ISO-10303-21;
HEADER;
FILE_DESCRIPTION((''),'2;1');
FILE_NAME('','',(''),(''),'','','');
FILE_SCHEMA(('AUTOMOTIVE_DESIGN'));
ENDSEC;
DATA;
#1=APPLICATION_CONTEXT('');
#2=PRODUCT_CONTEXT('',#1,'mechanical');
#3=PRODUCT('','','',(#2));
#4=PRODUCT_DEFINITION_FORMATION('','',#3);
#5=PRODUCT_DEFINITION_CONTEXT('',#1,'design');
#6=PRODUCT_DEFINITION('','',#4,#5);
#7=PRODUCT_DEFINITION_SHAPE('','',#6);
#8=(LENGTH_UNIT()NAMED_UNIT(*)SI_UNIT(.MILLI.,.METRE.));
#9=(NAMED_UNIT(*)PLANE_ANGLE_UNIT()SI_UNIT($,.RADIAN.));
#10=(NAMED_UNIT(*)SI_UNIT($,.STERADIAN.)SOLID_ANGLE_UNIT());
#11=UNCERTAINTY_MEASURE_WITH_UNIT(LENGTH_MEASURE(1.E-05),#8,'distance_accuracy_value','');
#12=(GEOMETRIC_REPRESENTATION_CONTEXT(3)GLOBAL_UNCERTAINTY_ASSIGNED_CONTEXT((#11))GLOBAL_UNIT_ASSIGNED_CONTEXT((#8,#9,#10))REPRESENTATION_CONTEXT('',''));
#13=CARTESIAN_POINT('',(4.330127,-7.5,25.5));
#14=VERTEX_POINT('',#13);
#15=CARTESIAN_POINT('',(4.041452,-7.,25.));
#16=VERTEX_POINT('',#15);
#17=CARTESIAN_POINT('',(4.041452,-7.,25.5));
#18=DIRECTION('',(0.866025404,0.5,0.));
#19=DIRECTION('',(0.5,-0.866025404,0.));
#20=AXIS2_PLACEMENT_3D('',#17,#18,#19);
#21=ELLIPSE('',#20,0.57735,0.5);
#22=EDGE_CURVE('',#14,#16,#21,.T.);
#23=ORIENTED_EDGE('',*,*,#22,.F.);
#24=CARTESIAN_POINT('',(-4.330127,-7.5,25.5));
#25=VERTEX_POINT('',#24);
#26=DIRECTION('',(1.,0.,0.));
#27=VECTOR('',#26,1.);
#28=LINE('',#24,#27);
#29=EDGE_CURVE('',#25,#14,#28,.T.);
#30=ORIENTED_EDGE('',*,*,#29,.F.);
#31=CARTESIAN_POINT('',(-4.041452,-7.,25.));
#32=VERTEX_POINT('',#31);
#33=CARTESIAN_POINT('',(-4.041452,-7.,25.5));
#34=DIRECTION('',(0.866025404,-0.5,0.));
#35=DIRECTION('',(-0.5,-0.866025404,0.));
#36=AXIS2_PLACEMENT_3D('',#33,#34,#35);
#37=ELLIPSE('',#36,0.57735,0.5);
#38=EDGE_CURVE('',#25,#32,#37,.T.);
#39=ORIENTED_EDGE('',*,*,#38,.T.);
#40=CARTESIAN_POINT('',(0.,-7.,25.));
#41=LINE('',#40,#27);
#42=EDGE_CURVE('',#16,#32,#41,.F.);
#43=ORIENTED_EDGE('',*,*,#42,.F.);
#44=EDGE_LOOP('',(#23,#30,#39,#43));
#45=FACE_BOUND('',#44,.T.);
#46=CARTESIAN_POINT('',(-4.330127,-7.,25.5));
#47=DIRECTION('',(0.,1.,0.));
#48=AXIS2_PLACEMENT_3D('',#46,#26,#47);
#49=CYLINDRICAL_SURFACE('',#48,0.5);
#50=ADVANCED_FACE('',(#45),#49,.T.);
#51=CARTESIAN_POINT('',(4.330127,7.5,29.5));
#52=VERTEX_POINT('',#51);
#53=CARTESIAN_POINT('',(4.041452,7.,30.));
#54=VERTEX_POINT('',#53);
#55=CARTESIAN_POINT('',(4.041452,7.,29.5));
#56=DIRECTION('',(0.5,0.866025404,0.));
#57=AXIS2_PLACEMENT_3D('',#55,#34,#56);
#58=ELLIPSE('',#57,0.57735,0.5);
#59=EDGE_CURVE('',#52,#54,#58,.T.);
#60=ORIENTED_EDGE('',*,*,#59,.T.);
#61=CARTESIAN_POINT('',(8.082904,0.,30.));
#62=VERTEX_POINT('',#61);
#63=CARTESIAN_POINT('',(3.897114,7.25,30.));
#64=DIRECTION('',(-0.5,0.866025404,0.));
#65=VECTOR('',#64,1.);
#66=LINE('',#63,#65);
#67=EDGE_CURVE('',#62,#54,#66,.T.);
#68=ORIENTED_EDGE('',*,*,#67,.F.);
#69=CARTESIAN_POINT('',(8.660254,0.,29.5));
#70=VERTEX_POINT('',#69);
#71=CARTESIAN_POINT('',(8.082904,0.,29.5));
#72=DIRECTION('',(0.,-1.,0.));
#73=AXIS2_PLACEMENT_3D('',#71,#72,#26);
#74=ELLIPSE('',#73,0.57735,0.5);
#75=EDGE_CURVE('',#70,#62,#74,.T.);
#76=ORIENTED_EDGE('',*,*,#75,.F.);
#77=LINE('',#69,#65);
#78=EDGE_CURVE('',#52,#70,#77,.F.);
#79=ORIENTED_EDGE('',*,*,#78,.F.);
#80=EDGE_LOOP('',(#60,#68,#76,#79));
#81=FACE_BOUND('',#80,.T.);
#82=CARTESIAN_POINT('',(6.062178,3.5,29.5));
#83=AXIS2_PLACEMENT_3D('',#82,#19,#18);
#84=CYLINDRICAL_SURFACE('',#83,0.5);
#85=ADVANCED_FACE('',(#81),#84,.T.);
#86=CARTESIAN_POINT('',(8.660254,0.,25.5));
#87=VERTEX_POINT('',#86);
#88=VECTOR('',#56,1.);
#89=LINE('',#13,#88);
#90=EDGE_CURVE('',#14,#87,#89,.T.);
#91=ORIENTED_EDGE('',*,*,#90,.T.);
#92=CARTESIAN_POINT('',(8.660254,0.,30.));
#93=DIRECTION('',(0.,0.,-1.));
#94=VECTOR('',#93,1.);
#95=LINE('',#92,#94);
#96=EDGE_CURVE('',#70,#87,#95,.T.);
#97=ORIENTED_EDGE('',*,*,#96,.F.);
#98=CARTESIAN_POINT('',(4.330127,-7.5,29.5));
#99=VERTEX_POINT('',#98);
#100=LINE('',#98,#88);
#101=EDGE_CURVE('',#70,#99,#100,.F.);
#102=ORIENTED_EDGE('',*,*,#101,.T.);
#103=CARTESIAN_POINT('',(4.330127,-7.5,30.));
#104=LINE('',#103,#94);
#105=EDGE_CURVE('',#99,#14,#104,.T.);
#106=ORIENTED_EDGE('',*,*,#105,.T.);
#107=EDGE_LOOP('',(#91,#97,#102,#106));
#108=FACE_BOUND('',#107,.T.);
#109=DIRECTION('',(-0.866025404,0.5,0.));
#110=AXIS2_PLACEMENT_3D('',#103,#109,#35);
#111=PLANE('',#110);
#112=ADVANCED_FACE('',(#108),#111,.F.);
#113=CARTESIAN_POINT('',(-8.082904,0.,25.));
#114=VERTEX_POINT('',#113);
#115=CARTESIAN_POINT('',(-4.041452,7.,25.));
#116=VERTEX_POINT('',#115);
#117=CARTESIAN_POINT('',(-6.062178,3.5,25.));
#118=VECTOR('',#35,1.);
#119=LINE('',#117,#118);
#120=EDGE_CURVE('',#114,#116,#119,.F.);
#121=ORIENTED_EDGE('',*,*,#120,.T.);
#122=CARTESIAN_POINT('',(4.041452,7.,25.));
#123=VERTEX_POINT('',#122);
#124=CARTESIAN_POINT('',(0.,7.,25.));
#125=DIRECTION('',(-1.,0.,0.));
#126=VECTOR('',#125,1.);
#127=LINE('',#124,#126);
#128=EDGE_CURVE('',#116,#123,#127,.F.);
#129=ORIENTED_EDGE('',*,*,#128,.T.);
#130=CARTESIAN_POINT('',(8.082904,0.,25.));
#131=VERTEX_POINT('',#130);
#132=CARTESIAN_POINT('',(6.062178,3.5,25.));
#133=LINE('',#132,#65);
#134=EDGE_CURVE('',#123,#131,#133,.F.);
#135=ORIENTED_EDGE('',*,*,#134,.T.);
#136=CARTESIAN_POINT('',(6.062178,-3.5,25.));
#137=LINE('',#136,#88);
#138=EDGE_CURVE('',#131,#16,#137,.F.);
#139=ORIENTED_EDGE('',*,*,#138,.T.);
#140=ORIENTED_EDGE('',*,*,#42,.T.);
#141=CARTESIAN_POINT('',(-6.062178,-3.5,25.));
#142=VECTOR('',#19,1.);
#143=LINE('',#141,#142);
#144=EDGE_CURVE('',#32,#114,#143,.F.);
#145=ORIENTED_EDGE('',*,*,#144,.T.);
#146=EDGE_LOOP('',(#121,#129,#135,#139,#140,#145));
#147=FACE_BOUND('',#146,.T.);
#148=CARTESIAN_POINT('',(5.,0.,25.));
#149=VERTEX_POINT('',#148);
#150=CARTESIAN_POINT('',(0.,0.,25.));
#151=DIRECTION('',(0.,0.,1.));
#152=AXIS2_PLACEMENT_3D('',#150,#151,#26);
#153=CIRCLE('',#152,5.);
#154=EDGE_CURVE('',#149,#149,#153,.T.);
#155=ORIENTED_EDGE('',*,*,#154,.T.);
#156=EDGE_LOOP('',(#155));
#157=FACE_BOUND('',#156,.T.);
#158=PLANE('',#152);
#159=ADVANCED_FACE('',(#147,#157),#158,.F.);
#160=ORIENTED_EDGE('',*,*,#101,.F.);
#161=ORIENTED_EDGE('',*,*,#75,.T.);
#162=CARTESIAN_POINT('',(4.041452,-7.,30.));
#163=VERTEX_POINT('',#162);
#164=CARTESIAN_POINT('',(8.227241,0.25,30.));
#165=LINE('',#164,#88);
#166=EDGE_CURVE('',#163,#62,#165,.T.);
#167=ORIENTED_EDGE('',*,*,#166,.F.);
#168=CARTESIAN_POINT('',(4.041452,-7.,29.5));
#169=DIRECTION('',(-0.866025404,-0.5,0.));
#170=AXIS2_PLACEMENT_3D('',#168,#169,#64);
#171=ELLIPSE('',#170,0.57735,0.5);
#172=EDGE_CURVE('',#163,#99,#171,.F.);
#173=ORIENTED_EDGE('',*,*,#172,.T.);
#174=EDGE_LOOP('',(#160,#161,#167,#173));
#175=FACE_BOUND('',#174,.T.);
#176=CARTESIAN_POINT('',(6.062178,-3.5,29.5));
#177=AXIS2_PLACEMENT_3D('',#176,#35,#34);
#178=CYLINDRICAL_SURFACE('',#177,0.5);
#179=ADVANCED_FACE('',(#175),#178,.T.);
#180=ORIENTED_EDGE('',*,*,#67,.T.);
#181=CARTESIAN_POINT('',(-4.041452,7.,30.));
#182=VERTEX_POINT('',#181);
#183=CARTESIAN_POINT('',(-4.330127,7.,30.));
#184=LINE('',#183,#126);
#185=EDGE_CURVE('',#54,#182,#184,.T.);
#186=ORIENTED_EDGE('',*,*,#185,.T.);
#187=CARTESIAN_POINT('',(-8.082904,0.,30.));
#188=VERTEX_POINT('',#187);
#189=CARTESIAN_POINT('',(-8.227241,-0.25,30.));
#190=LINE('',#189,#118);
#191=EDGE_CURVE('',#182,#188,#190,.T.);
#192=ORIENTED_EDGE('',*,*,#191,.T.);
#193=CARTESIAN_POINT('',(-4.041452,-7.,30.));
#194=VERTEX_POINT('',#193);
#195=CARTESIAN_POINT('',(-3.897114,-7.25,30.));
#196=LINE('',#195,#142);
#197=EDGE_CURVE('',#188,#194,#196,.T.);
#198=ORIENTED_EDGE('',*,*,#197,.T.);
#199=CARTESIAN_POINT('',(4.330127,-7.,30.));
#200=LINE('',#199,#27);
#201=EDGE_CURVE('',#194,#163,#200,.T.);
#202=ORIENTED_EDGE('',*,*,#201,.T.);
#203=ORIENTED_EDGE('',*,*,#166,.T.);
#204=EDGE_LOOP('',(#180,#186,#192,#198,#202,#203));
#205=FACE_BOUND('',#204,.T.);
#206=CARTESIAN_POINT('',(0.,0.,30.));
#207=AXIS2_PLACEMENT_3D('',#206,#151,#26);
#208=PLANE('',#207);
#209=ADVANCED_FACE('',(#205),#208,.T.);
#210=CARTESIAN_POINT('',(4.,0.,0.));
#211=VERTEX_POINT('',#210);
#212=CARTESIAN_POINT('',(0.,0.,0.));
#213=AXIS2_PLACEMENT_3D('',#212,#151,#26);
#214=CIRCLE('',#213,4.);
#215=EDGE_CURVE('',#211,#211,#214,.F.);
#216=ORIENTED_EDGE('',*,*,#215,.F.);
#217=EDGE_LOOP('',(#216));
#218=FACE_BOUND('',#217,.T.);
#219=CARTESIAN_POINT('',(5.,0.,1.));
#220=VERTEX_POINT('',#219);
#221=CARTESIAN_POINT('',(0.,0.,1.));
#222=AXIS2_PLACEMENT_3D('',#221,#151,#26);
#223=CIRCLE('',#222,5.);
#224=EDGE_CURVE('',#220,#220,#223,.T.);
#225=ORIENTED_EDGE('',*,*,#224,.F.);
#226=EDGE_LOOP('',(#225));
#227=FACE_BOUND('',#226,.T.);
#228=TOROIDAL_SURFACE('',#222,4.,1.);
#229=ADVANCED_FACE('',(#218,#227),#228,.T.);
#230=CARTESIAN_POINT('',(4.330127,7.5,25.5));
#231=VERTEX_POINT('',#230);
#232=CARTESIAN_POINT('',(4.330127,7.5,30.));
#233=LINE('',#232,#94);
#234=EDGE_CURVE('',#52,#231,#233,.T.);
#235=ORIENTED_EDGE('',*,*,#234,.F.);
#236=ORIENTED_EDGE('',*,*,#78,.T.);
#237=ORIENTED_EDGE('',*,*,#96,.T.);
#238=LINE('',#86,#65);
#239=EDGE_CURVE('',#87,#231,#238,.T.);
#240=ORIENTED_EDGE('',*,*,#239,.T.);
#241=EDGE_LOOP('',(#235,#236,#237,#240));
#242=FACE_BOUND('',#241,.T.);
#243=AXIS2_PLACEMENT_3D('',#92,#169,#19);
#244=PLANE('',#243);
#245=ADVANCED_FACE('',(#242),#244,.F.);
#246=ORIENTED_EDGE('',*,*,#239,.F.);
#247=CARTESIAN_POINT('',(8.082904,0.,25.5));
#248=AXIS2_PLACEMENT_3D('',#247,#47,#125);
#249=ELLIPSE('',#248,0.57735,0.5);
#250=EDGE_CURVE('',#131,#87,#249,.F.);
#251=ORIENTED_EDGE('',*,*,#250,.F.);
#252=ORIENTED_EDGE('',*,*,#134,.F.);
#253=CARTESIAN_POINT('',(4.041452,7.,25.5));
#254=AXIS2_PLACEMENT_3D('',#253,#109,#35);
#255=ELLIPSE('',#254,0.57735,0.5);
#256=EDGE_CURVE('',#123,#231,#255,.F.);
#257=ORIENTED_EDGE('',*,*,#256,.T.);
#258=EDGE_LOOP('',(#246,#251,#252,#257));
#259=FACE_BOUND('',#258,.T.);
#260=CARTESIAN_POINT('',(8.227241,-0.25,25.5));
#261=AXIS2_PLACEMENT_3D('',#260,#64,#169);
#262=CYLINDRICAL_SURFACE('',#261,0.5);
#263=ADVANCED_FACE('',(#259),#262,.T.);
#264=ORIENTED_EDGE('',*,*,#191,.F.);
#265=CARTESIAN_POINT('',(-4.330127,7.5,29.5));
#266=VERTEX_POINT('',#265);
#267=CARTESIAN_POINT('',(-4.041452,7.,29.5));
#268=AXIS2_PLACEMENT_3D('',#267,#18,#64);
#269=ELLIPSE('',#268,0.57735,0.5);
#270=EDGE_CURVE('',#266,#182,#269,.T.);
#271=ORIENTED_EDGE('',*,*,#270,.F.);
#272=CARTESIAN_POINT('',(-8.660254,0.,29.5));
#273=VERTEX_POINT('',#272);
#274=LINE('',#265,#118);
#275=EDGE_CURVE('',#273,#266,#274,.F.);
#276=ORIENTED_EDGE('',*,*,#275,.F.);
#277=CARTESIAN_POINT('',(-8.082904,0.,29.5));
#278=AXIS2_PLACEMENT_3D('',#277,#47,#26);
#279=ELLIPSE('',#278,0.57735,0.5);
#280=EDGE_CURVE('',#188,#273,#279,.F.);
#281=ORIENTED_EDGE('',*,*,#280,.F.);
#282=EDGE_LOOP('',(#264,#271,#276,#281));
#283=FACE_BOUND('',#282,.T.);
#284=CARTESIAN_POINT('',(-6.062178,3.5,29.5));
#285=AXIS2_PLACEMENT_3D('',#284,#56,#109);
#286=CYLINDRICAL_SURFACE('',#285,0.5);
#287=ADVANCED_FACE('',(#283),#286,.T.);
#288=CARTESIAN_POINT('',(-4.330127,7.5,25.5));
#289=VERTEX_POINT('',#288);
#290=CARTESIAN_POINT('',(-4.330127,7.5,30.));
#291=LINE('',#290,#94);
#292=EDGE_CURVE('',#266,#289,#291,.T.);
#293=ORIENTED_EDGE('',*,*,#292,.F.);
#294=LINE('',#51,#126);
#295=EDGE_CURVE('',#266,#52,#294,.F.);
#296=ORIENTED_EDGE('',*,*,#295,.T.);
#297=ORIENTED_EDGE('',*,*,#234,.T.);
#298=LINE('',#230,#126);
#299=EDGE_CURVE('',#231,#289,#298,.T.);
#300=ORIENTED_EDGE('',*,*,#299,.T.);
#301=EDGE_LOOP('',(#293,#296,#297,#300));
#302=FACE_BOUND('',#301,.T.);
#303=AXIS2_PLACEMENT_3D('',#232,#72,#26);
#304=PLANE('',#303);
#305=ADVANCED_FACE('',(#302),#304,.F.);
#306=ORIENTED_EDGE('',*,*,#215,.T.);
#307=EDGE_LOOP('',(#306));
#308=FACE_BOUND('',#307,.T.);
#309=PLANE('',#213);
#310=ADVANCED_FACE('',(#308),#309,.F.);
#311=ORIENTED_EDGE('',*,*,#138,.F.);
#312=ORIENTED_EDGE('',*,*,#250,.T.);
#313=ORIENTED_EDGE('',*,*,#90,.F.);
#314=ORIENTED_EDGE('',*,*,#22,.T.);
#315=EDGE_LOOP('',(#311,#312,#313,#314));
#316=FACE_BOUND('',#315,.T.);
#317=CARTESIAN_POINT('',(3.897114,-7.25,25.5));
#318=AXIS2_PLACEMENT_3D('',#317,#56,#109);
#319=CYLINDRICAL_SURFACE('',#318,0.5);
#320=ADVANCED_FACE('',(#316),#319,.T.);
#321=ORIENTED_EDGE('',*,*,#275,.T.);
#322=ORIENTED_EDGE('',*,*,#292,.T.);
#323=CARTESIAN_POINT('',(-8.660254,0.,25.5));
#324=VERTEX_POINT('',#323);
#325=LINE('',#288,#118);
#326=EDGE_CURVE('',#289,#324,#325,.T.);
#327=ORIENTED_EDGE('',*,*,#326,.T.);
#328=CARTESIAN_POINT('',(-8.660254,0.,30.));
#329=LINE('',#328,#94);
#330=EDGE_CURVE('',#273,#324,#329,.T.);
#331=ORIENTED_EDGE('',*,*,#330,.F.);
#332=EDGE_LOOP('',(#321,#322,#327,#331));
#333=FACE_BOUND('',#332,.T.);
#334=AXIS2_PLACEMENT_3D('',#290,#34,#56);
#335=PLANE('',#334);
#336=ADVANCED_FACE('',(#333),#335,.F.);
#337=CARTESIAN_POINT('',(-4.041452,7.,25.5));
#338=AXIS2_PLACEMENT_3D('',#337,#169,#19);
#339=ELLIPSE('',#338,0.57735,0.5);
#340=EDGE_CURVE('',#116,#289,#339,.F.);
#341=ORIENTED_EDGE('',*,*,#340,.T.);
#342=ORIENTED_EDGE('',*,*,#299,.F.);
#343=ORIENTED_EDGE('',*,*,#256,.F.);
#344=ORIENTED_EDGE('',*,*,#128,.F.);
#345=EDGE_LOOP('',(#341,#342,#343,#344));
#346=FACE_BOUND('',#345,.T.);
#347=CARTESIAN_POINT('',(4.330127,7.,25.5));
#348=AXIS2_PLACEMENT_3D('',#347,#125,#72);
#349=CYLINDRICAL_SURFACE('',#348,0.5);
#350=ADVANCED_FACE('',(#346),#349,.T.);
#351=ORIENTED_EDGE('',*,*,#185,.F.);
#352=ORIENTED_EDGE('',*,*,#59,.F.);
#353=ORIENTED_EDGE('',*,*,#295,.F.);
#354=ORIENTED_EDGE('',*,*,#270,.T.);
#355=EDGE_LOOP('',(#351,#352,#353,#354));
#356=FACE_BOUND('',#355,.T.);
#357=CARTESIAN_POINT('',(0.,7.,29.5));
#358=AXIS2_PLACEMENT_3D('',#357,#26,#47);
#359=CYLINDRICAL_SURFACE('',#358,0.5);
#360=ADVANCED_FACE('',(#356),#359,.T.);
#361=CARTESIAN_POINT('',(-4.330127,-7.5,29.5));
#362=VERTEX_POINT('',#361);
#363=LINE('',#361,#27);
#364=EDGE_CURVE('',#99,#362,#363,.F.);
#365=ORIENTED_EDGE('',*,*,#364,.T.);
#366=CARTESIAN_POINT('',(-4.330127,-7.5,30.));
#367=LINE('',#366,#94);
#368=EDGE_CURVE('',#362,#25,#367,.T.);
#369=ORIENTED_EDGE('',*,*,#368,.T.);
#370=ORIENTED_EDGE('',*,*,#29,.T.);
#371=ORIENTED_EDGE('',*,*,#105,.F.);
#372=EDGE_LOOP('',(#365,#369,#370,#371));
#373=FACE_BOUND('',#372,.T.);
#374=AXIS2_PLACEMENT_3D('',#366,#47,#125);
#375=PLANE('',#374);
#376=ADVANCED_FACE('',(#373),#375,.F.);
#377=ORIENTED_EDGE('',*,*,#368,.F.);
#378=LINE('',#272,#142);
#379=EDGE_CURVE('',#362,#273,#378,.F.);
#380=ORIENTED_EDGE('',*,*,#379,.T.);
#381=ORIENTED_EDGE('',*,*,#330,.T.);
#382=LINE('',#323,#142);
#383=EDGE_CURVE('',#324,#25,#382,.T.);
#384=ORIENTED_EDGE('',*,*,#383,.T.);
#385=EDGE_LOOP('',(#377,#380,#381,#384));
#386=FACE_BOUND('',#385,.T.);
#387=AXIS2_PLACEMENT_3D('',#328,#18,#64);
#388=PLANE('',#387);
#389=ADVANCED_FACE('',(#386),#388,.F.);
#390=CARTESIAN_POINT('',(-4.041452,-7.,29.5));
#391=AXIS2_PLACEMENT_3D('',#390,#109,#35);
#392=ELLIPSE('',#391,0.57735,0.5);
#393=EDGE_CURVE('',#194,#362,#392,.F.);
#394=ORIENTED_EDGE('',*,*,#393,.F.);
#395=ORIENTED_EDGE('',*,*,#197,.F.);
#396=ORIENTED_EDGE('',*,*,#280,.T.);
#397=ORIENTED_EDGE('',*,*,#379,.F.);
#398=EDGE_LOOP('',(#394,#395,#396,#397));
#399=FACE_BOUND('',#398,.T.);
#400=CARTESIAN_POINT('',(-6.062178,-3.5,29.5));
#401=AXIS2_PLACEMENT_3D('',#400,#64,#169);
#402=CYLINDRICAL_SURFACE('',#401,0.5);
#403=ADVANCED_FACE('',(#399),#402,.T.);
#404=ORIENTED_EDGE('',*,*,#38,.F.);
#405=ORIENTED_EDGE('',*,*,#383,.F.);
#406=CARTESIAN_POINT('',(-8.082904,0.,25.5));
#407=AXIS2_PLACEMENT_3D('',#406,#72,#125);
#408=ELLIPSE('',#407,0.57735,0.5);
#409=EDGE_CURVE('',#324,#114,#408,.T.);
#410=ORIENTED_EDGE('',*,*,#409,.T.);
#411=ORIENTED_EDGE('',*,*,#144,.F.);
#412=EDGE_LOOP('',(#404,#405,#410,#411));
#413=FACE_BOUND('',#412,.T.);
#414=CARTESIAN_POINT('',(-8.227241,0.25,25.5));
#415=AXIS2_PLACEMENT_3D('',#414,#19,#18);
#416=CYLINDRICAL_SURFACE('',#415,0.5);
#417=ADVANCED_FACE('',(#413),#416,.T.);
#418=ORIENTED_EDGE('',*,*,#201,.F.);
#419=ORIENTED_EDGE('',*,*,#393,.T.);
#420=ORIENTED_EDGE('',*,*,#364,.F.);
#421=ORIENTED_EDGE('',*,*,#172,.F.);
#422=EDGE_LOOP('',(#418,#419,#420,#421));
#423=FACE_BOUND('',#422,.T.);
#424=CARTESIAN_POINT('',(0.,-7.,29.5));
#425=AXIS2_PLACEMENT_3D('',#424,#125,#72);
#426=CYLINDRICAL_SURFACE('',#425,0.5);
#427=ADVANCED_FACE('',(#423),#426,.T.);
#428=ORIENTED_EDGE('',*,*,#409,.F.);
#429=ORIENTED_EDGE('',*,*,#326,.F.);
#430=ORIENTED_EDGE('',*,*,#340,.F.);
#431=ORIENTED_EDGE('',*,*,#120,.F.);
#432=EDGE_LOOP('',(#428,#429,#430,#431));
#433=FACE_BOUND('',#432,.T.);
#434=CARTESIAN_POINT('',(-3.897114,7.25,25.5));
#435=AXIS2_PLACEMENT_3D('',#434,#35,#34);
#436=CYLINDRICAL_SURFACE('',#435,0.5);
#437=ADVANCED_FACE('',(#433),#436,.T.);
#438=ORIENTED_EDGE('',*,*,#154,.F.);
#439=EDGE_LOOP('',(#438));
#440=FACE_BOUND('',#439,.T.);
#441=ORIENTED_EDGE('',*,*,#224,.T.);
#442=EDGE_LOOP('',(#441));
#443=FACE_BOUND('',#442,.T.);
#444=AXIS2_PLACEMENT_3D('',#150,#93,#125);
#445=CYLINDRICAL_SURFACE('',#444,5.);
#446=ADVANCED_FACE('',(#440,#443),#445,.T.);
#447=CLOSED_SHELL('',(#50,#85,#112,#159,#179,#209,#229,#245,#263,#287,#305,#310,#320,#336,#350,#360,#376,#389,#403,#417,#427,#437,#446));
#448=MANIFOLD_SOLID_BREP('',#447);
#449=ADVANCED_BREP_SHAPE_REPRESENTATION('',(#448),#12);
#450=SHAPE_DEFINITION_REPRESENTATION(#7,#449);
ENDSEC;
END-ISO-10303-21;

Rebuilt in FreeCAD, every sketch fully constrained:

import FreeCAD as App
import Part
import Sketcher
Q = App.Units.Quantity


def edges_at(feature, points):
    """Names of the edges that pass closest to the given points."""
    edges = feature.Shape.Edges
    near = lambda p: min(range(len(edges)), key=lambda i: edges[i].distToShape(Part.Vertex(*p))[0])
    return sorted({f"Edge{near(p) + 1}" for p in points})

doc = App.newDocument("Part")
body = doc.addObject("PartDesign::Body", "Body")

# Sketch on XY plane
sketch1 = body.newObject("Sketcher::SketchObject", "Sketch")
sketch1.AttachmentSupport = (doc.getObject("XY_Plane"), [""])
sketch1.MapMode = "FlatFace"
sketch1.addGeometry(Part.Circle(App.Vector(0, 0, 0), App.Vector(0, 0, 1), 5), False)
sketch1.addConstraint([
    Sketcher.Constraint("Coincident", 0, 3, -1, 1),
    Sketcher.Constraint("Diameter", 0, 10.0),
])
pad1 = body.newObject("PartDesign::Pad", "Pad")
pad1.Profile = sketch1
pad1.Length = 25

# Sketch on XY plane
sketch2 = body.newObject("Sketcher::SketchObject", "Sketch001")
sketch2.AttachmentSupport = (doc.getObject("XY_Plane"), [""])
sketch2.MapMode = "FlatFace"
sketch2.AttachmentOffset = App.Placement(App.Vector(0, 0, 25), App.Rotation())
sketch2.addGeometry([
    Part.LineSegment(App.Vector(4, -8, 0), App.Vector(9, 0, 0)),  # 0
    Part.LineSegment(App.Vector(9, 0, 0), App.Vector(4, 8, 0)),  # 1
    Part.LineSegment(App.Vector(4, 8, 0), App.Vector(-4, 8, 0)),  # 2
    Part.LineSegment(App.Vector(-4, 8, 0), App.Vector(-9, 0, 0)),  # 3
    Part.LineSegment(App.Vector(-9, 0, 0), App.Vector(-4, -8, 0)),  # 4
    Part.LineSegment(App.Vector(-4, -8, 0), App.Vector(4, -8, 0)),  # 5
], False)
sketch2.addConstraint([
    Sketcher.Constraint("Coincident", 0, 2, 1, 1),
    Sketcher.Constraint("Coincident", 1, 2, 2, 1),
    Sketcher.Constraint("Coincident", 2, 2, 3, 1),
    Sketcher.Constraint("Coincident", 3, 2, 4, 1),
    Sketcher.Constraint("Coincident", 4, 2, 5, 1),
    Sketcher.Constraint("Coincident", 5, 2, 0, 1),
    Sketcher.Constraint("Horizontal", 2),
    Sketcher.Constraint("Horizontal", 5),
    Sketcher.Constraint("Symmetric", 0, 2, 3, 2, -1, 1),
    Sketcher.Constraint("Symmetric", 1, 2, 4, 2, -1, 1),
    Sketcher.Constraint("PointOnObject", 0, 2, -1),
    Sketcher.Constraint("Parallel", 0, 3),
    Sketcher.Constraint("Vertical", 2, 2, 4, 2),
    Sketcher.Constraint("Angle", 0, Q("60 deg")),
    Sketcher.Constraint("DistanceY", 4, 2, 2, 2, 15.0),
    Sketcher.Constraint("DistanceX", 2, 2, 2, 1, 8.660254),
])
pad2 = body.newObject("PartDesign::Pad", "Pad001")
pad2.Profile = sketch2
pad2.Length = 5
doc.recompute()

fillet = body.newObject("PartDesign::Fillet", "Fillet")
fillet.Base = (pad2, edges_at(pad2, [(-5, 0, 0)]))
fillet.Radius = 1
doc.recompute()

fillet2 = body.newObject("PartDesign::Fillet", "Fillet001")
fillet2.Base = (fillet, edges_at(fillet, [
    (0, -7.5, 25),
    (6.495, -3.75, 25),
    (6.495, 3.75, 25),
    (0, 7.5, 25),
    (-6.495, 3.75, 25),
    (-6.495, -3.75, 25),
    (0, -7.5, 30),
    (6.495, -3.75, 30),
    (6.495, 3.75, 30),
    (0, 7.5, 30),
    (-6.495, 3.75, 30),
    (-6.495, -3.75, 30),
]))
fillet2.Radius = 0.5

doc.recompute()
